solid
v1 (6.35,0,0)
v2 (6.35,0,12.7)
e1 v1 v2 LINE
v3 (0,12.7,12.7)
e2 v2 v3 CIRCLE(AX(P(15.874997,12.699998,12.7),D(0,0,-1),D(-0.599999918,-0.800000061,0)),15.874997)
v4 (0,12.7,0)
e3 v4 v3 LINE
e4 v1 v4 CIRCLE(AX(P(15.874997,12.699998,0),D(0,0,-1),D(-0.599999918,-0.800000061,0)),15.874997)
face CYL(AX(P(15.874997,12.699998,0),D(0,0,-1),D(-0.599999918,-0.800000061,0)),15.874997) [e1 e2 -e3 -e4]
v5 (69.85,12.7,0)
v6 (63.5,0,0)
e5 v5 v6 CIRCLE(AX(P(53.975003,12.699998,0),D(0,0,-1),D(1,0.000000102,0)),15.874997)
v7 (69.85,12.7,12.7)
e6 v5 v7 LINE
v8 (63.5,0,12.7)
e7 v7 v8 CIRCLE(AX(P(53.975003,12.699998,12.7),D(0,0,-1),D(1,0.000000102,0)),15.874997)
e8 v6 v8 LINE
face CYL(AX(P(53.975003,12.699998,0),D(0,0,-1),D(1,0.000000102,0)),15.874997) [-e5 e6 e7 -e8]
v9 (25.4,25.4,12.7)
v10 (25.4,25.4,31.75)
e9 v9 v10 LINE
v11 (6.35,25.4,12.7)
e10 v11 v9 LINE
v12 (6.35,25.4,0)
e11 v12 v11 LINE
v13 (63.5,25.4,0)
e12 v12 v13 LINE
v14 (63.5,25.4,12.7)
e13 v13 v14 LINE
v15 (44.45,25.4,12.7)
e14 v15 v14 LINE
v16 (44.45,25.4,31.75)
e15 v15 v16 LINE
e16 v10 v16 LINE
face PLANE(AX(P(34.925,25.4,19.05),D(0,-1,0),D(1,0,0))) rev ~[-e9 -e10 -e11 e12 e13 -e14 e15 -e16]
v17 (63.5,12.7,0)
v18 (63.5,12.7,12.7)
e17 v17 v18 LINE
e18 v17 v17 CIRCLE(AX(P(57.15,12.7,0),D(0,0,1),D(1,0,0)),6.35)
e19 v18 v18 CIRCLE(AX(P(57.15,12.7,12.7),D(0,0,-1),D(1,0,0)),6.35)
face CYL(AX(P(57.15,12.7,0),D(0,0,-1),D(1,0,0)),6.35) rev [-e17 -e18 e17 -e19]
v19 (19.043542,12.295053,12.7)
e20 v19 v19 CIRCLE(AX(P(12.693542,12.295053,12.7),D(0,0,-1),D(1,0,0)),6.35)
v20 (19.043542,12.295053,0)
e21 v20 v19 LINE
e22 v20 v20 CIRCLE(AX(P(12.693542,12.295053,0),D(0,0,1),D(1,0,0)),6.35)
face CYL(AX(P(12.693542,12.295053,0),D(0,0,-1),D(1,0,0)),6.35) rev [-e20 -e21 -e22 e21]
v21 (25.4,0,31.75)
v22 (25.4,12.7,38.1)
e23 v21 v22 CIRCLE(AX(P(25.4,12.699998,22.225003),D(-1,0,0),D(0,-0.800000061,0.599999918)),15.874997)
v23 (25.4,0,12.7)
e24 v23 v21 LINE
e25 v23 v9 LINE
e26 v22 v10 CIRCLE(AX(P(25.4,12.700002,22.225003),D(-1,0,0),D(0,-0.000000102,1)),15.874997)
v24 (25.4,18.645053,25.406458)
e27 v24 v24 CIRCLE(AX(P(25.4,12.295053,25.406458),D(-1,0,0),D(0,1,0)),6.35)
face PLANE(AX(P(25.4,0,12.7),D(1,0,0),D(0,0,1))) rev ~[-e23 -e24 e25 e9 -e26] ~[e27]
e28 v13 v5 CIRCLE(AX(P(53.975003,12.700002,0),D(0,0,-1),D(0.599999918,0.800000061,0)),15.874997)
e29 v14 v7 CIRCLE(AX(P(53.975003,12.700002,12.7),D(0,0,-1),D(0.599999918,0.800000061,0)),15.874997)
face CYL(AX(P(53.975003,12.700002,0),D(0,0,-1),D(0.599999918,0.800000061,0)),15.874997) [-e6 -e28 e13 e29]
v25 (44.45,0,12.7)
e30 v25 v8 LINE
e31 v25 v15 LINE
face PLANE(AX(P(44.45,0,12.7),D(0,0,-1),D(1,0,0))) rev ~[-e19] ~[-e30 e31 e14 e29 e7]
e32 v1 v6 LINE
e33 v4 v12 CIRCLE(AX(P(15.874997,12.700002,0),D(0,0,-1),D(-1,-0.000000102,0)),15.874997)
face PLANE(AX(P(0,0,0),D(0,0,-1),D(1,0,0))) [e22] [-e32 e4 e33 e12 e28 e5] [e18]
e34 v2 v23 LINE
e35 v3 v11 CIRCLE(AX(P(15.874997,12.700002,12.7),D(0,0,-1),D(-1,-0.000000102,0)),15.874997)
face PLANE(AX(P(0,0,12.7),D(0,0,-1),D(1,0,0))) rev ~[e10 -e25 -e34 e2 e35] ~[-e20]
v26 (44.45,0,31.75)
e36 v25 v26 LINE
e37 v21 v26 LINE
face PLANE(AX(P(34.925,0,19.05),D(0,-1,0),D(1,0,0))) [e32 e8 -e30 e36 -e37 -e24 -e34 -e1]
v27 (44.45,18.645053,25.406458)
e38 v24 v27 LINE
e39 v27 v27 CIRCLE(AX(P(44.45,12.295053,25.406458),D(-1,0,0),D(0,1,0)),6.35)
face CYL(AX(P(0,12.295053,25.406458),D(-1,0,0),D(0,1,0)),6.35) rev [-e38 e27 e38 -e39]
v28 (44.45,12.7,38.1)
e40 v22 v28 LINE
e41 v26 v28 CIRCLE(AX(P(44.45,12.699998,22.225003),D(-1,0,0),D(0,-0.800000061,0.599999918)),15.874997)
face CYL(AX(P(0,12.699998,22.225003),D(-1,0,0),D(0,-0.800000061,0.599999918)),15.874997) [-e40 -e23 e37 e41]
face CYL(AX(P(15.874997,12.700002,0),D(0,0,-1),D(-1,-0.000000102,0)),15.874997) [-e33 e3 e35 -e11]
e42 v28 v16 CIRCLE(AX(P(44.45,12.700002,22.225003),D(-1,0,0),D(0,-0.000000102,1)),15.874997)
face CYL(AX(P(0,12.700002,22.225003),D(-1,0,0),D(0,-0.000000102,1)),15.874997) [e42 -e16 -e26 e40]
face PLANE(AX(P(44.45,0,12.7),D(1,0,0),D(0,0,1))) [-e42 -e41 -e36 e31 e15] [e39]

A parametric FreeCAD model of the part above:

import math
import FreeCAD as App
import Part
import Sketcher
from FreeCAD import Vector
Q = App.Units.Quantity

doc = App.newDocument("Part")
body = doc.addObject("PartDesign::Body", "Body")

# Sketch on XZ plane
sketch1 = body.newObject("Sketcher::SketchObject", "Sketch")
sketch1.AttachmentSupport = (doc.getObject("XZ_Plane"), [""])
sketch1.MapMode = "FlatFace"
sketch1.addGeometry(Part.LineSegment(Vector(0, 38.1, 0), Vector(0, 0, 0)), False)
sketch1.addGeometry(Part.LineSegment(Vector(0, 0, 0), Vector(69.85, 0, 0)), False)
sketch1.addGeometry(Part.LineSegment(Vector(69.85, 0, 0), Vector(69.85, 38.1, 0)), False)
sketch1.addGeometry(Part.LineSegment(Vector(69.85, 38.1, 0), Vector(0, 38.1, 0)), False)
sketch1.addConstraint(Sketcher.Constraint("Coincident", 0, 2, 1, 1))
sketch1.addConstraint(Sketcher.Constraint("Coincident", 1, 2, 2, 1))
sketch1.addConstraint(Sketcher.Constraint("Coincident", 2, 2, 3, 1))
sketch1.addConstraint(Sketcher.Constraint("Coincident", 3, 2, 0, 1))
sketch1.addConstraint(Sketcher.Constraint("Vertical", 0))
sketch1.addConstraint(Sketcher.Constraint("Horizontal", 1))
sketch1.addConstraint(Sketcher.Constraint("Vertical", 2))
sketch1.addConstraint(Sketcher.Constraint("Horizontal", 3))
sketch1.addConstraint(Sketcher.Constraint("Coincident", 0, 2, -1, 1))
sketch1.addConstraint(Sketcher.Constraint("DistanceY", 0, 2, 0, 1, Q("1.5 in")))
sketch1.addConstraint(Sketcher.Constraint("DistanceX", 1, 1, 1, 2, Q("2.75 in")))
pad1 = body.newObject("PartDesign::Pad", "Pad")
pad1.Profile = sketch1
pad1.Length = Q("1 in")
pad1.Reversed = True

# Sketch on XZ plane
sketch2 = body.newObject("Sketcher::SketchObject", "Sketch001")
sketch2.AttachmentSupport = (doc.getObject("XZ_Plane"), [""])
sketch2.MapMode = "FlatFace"
sketch2.addGeometry(Part.LineSegment(Vector(44.45, 38.1, 0), Vector(44.45, 12.7, 0)), False)
sketch2.addGeometry(Part.LineSegment(Vector(44.45, 12.7, 0), Vector(69.85, 12.7, 0)), False)
sketch2.addGeometry(Part.LineSegment(Vector(69.85, 12.7, 0), Vector(69.85, 38.1, 0)), False)
sketch2.addGeometry(Part.LineSegment(Vector(69.85, 38.1, 0), Vector(44.45, 38.1, 0)), False)
sketch2.addConstraint(Sketcher.Constraint("Coincident", 0, 2, 1, 1))
sketch2.addConstraint(Sketcher.Constraint("Coincident", 1, 2, 2, 1))
sketch2.addConstraint(Sketcher.Constraint("Coincident", 2, 2, 3, 1))
sketch2.addConstraint(Sketcher.Constraint("Coincident", 3, 2, 0, 1))
sketch2.addConstraint(Sketcher.Constraint("Vertical", 0))
sketch2.addConstraint(Sketcher.Constraint("Horizontal", 1))
sketch2.addConstraint(Sketcher.Constraint("Vertical", 2))
sketch2.addConstraint(Sketcher.Constraint("Horizontal", 3))
sketch2.addConstraint(Sketcher.Constraint("Equal", 3, 0))
sketch2.addConstraint(Sketcher.Constraint("DistanceX", 1, 1, 1, 2, Q("1 in")))
sketch2.addConstraint(Sketcher.Constraint("DistanceY", -1, 1, 0, 2, Q("0.5 in")))
sketch2.addConstraint(Sketcher.Constraint("DistanceX", -1, 1, 0, 2, Q("1.75 in")))
pocket1 = body.newObject("PartDesign::Pocket", "Pocket")
pocket1.Profile = sketch2
pocket1.Length = Q("1 in")

# Sketch on XZ plane
sketch3 = body.newObject("Sketcher::SketchObject", "Sketch002")
sketch3.AttachmentSupport = (doc.getObject("XZ_Plane"), [""])
sketch3.MapMode = "FlatFace"
sketch3.addGeometry(Part.LineSegment(Vector(0, 38.1, 0), Vector(0, 12.7, 0)), False)
sketch3.addGeometry(Part.LineSegment(Vector(0, 12.7, 0), Vector(25.4, 12.7, 0)), False)
sketch3.addGeometry(Part.LineSegment(Vector(25.4, 12.7, 0), Vector(25.4, 38.1, 0)), False)
sketch3.addGeometry(Part.LineSegment(Vector(25.4, 38.1, 0), Vector(0, 38.1, 0)), False)
sketch3.addConstraint(Sketcher.Constraint("Coincident", 0, 2, 1, 1))
sketch3.addConstraint(Sketcher.Constraint("Coincident", 1, 2, 2, 1))
sketch3.addConstraint(Sketcher.Constraint("Coincident", 2, 2, 3, 1))
sketch3.addConstraint(Sketcher.Constraint("Coincident", 3, 2, 0, 1))
sketch3.addConstraint(Sketcher.Constraint("Vertical", 0))
sketch3.addConstraint(Sketcher.Constraint("Horizontal", 1))
sketch3.addConstraint(Sketcher.Constraint("Vertical", 2))
sketch3.addConstraint(Sketcher.Constraint("Horizontal", 3))
sketch3.addConstraint(Sketcher.Constraint("PointOnObject", 0, 2, -2))
sketch3.addConstraint(Sketcher.Constraint("Equal", 3, 0))
sketch3.addConstraint(Sketcher.Constraint("DistanceX", 1, 1, 1, 2, Q("1 in")))
sketch3.addConstraint(Sketcher.Constraint("DistanceY", -1, 1, 0, 2, Q("0.5 in")))
pocket2 = body.newObject("PartDesign::Pocket", "Pocket001")
pocket2.Profile = sketch3
pocket2.Length = Q("1 in")

# Sketch on XY plane
sketch4 = body.newObject("Sketcher::SketchObject", "Sketch003")
sketch4.AttachmentSupport = (doc.getObject("XY_Plane"), [""])
sketch4.MapMode = "FlatFace"
sketch4.addGeometry(Part.ArcOfCircle(Part.Circle(Vector(53.975003, 12.700002, 0), Vector(0, 0, 1), 15.874997), math.radians(-0.000006), math.radians(53.130108)), False)
sketch4.addGeometry(Part.LineSegment(Vector(69.85, 12.7, 0), Vector(69.85, 25.4, 0)), False)
sketch4.addGeometry(Part.LineSegment(Vector(69.85, 25.4, 0), Vector(63.5, 25.4, 0)), False)
sketch4.addGeometry(Part.ArcOfCircle(Part.Circle(Vector(53.975003, 12.699998, 0), Vector(0, 0, 1), 15.874997), math.radians(-53.130108), math.radians(0.000006)), False)
sketch4.addGeometry(Part.LineSegment(Vector(63.5, 0, 0), Vector(69.85, 0, 0)), False)
sketch4.addGeometry(Part.LineSegment(Vector(69.85, 0, 0), Vector(69.85, 12.7, 0)), False)
sketch4.addConstraint(Sketcher.Constraint("Tangent", 0, 1, 1, 1))
sketch4.addConstraint(Sketcher.Constraint("Coincident", 1, 2, 2, 1))
sketch4.addConstraint(Sketcher.Constraint("Coincident", 2, 2, 0, 2))
sketch4.addConstraint(Sketcher.Constraint("Coincident", 3, 1, 4, 1))
sketch4.addConstraint(Sketcher.Constraint("Coincident", 4, 2, 5, 1))
sketch4.addConstraint(Sketcher.Constraint("Tangent", 5, 2, 3, 2))
sketch4.addConstraint(Sketcher.Constraint("Vertical", 1))
sketch4.addConstraint(Sketcher.Constraint("Horizontal", 2))
sketch4.addConstraint(Sketcher.Constraint("Horizontal", 4))
sketch4.addConstraint(Sketcher.Constraint("Vertical", 5))
sketch4.addConstraint(Sketcher.Constraint("Coincident", 3, 3, 0, 3))
sketch4.addConstraint(Sketcher.Constraint("Equal", 0, 3))
sketch4.addConstraint(Sketcher.Constraint("PointOnObject", 3, 1, -1))
sketch4.addConstraint(Sketcher.Constraint("Vertical", 2, 2, 3, 1))
sketch4.addConstraint(Sketcher.Constraint("DistanceY", 1, 1, 1, 2, Q("0.5 in")))
sketch4.addConstraint(Sketcher.Constraint("Radius", 0, Q("0.6249999 in")))
sketch4.addConstraint(Sketcher.Constraint("DistanceX", -1, 1, 2, 2, Q("2.5 in")))
pocket3 = body.newObject("PartDesign::Pocket", "Pocket002")
pocket3.Profile = sketch4
pocket3.Length = Q("1 in")
pocket3.Reversed = True

# Sketch on XY plane
sketch5 = body.newObject("Sketcher::SketchObject", "Sketch004")
sketch5.AttachmentSupport = (doc.getObject("XY_Plane"), [""])
sketch5.MapMode = "FlatFace"
sketch5.addGeometry(Part.ArcOfCircle(Part.Circle(Vector(15.874997, 12.699998, 0), Vector(0, 0, 1), 15.874997), math.radians(179.999994), math.radians(233.130108)), False)
sketch5.addGeometry(Part.LineSegment(Vector(0, 12.7, 0), Vector(0, 0, 0)), False)
sketch5.addGeometry(Part.LineSegment(Vector(0, 0, 0), Vector(6.35, 0, 0)), False)
sketch5.addGeometry(Part.ArcOfCircle(Part.Circle(Vector(15.874997, 12.700002, 0), Vector(0, 0, 1), 15.874997), math.radians(126.869892), math.radians(180.000006)), False)
sketch5.addGeometry(Part.LineSegment(Vector(6.35, 25.4, 0), Vector(0, 25.4, 0)), False)
sketch5.addGeometry(Part.LineSegment(Vector(0, 25.4, 0), Vector(0, 12.7, 0)), False)
sketch5.addConstraint(Sketcher.Constraint("Tangent", 0, 1, 1, 1))
sketch5.addConstraint(Sketcher.Constraint("Coincident", 1, 2, 2, 1))
sketch5.addConstraint(Sketcher.Constraint("Coincident", 2, 2, 0, 2))
sketch5.addConstraint(Sketcher.Constraint("Coincident", 3, 1, 4, 1))
sketch5.addConstraint(Sketcher.Constraint("Coincident", 4, 2, 5, 1))
sketch5.addConstraint(Sketcher.Constraint("Tangent", 5, 2, 3, 2))
sketch5.addConstraint(Sketcher.Constraint("Vertical", 1))
sketch5.addConstraint(Sketcher.Constraint("Horizontal", 2))
sketch5.addConstraint(Sketcher.Constraint("Horizontal", 4))
sketch5.addConstraint(Sketcher.Constraint("Vertical", 5))
sketch5.addConstraint(Sketcher.Constraint("Coincident", 1, 2, -1, 1))
sketch5.addConstraint(Sketcher.Constraint("Coincident", 3, 3, 0, 3))
sketch5.addConstraint(Sketcher.Constraint("Equal", 0, 3))
sketch5.addConstraint(Sketcher.Constraint("Vertical", 2, 2, 3, 1))
sketch5.addConstraint(Sketcher.Constraint("DistanceY", 1, 2, 1, 1, Q("0.5 in")))
sketch5.addConstraint(Sketcher.Constraint("Radius", 0, Q("0.6249999 in")))
pocket4 = body.newObject("PartDesign::Pocket", "Pocket003")
pocket4.Profile = sketch5
pocket4.Length = Q("1 in")
pocket4.Reversed = True

# Sketch on YZ plane
sketch6 = body.newObject("Sketcher::SketchObject", "Sketch005")
sketch6.AttachmentSupport = (doc.getObject("YZ_Plane"), [""])
sketch6.MapMode = "FlatFace"
sketch6.addGeometry(Part.ArcOfCircle(Part.Circle(Vector(12.699998, 22.225003, 0), Vector(0, 0, 1), 15.874997), math.radians(89.999994), math.radians(143.130108)), False)
sketch6.addGeometry(Part.LineSegment(Vector(12.7, 38.1, 0), Vector(0, 38.1, 0)), False)
sketch6.addGeometry(Part.LineSegment(Vector(0, 38.1, 0), Vector(0, 31.75, 0)), False)
sketch6.addGeometry(Part.ArcOfCircle(Part.Circle(Vector(12.700002, 22.225003, 0), Vector(0, 0, 1), 15.874997), math.radians(36.869892), math.radians(90.000006)), False)
sketch6.addGeometry(Part.LineSegment(Vector(25.4, 31.75, 0), Vector(25.4, 38.1, 0)), False)
sketch6.addGeometry(Part.LineSegment(Vector(25.4, 38.1, 0), Vector(12.7, 38.1, 0)), False)
sketch6.addConstraint(Sketcher.Constraint("Tangent", 0, 1, 1, 1))
sketch6.addConstraint(Sketcher.Constraint("Coincident", 1, 2, 2, 1))
sketch6.addConstraint(Sketcher.Constraint("Coincident", 2, 2, 0, 2))
sketch6.addConstraint(Sketcher.Constraint("Coincident", 3, 1, 4, 1))
sketch6.addConstraint(Sketcher.Constraint("Coincident", 4, 2, 5, 1))
sketch6.addConstraint(Sketcher.Constraint("Tangent", 5, 2, 3, 2))
sketch6.addConstraint(Sketcher.Constraint("Horizontal", 1))
sketch6.addConstraint(Sketcher.Constraint("Vertical", 2))
sketch6.addConstraint(Sketcher.Constraint("Vertical", 4))
sketch6.addConstraint(Sketcher.Constraint("Horizontal", 5))
sketch6.addConstraint(Sketcher.Constraint("Coincident", 3, 3, 0, 3))
sketch6.addConstraint(Sketcher.Constraint("Equal", 0, 3))
sketch6.addConstraint(Sketcher.Constraint("PointOnObject", 1, 2, -2))
sketch6.addConstraint(Sketcher.Constraint("Horizontal", 2, 2, 3, 1))
sketch6.addConstraint(Sketcher.Constraint("DistanceX", 1, 2, 1, 1, Q("0.5 in")))
sketch6.addConstraint(Sketcher.Constraint("Radius", 0, Q("0.6249999 in")))
sketch6.addConstraint(Sketcher.Constraint("DistanceY", -1, 1, 0, 1, Q("1.5 in")))
pocket5 = body.newObject("PartDesign::Pocket", "Pocket004")
pocket5.Profile = sketch6
pocket5.Length = Q("2 in")
pocket5.Reversed = True

# Sketch on XY plane
sketch7 = body.newObject("Sketcher::SketchObject", "Sketch006")
sketch7.AttachmentSupport = (doc.getObject("XY_Plane"), [""])
sketch7.MapMode = "FlatFace"
sketch7.addGeometry(Part.Circle(Vector(12.693542, 12.295053, 0), Vector(0, 0, 1), 6.35), False)
sketch7.addGeometry(Part.Circle(Vector(57.15, 12.7, 0), Vector(0, 0, 1), 6.35), False)
sketch7.addConstraint(Sketcher.Constraint("Equal", 0, 1))
sketch7.addConstraint(Sketcher.Constraint("Diameter", 0, Q("0.5 in")))
sketch7.addConstraint(Sketcher.Constraint("DistanceY", -1, 1, 1, 3, Q("0.5 in")))
sketch7.addConstraint(Sketcher.Constraint("DistanceX", -1, 1, 1, 3, Q("2.25 in")))
sketch7.addConstraint(Sketcher.Constraint("DistanceX", -1, 1, 0, 3, Q("12.693542 mm")))
sketch7.addConstraint(Sketcher.Constraint("DistanceY", -1, 1, 0, 3, Q("12.295053 mm")))
pocket6 = body.newObject("PartDesign::Pocket", "Pocket005")
pocket6.Profile = sketch7
pocket6.Length = Q("1 in")
pocket6.Reversed = True

# Sketch on YZ plane
sketch8 = body.newObject("Sketcher::SketchObject", "Sketch007")
sketch8.AttachmentSupport = (doc.getObject("YZ_Plane"), [""])
sketch8.MapMode = "FlatFace"
sketch8.addGeometry(Part.Circle(Vector(12.295053, 25.406458, 0), Vector(0, 0, 1), 6.35), False)
sketch8.addConstraint(Sketcher.Constraint("Diameter", 0, Q("0.5 in")))
sketch8.addConstraint(Sketcher.Constraint("DistanceY", -1, 1, 0, 3, Q("25.406458 mm")))
sketch8.addConstraint(Sketcher.Constraint("DistanceX", -1, 1, 0, 3, Q("12.295053 mm")))
pocket7 = body.newObject("PartDesign::Pocket", "Pocket006")
pocket7.Profile = sketch8
pocket7.Length = Q("2 in")
pocket7.Reversed = True

doc.recompute()
